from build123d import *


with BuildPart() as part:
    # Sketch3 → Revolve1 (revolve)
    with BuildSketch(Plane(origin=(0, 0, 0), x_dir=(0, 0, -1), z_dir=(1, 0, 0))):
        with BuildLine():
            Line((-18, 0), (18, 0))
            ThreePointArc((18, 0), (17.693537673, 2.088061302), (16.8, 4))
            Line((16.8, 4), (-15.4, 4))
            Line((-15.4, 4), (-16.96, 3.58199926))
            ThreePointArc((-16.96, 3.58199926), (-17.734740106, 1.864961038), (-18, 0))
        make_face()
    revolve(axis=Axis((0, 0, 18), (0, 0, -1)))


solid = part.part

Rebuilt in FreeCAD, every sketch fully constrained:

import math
import FreeCAD as App
import Part
import Sketcher
from FreeCAD import Vector
Q = App.Units.Quantity

doc = App.newDocument("Part")
body = doc.addObject("PartDesign::Body", "Body")

sketch1 = body.newObject("Sketcher::SketchObject", "Sketch")
sketch1.AttachmentSupport = (doc.getObject("YZ_Plane"), [""])
sketch1.MapMode = "FlatFace"
sketch1.addGeometry(Part.LineSegment(Vector(0, 18, 0), Vector(0, -18, 0)), False)
sketch1.addGeometry(Part.ArcOfCircle(Part.Circle(Vector(0, -10.7, 0), Vector(0, 0, 1), 7.3), math.radians(-90), math.radians(-57)), False)
sketch1.addGeometry(Part.LineSegment(Vector(4, -16.8, 0), Vector(4, 15.4, 0)), False)
sketch1.addGeometry(Part.LineSegment(Vector(4, 15.4, 0), Vector(3.6, 17, 0)), False)
sketch1.addGeometry(Part.ArcOfCircle(Part.Circle(Vector(0, 11.3, 0), Vector(0, 0, 1), 6.7), math.radians(58), math.radians(90)), False)
sketch1.addConstraint(Sketcher.Constraint("Coincident", 0, 2, 1, 1))
sketch1.addConstraint(Sketcher.Constraint("Coincident", 1, 2, 2, 1))
sketch1.addConstraint(Sketcher.Constraint("Coincident", 2, 2, 3, 1))
sketch1.addConstraint(Sketcher.Constraint("Coincident", 3, 2, 4, 1))
sketch1.addConstraint(Sketcher.Constraint("Coincident", 4, 2, 0, 1))
sketch1.addConstraint(Sketcher.Constraint("Vertical", 0))
sketch1.addConstraint(Sketcher.Constraint("Vertical", 2))
sketch1.addConstraint(Sketcher.Constraint("Symmetric", 0, 2, 4, 2, -1, 1))
sketch1.addConstraint(Sketcher.Constraint("PointOnObject", 1, 3, -2))
sketch1.addConstraint(Sketcher.Constraint("PointOnObject", 4, 3, -2))
sketch1.addConstraint(Sketcher.Constraint("DistanceY", 0, 2, 0, 1, Q("36 mm")))
sketch1.addConstraint(Sketcher.Constraint("Angle", 3, Q("105 deg")))
sketch1.addConstraint(Sketcher.Constraint("DistanceY", 2, 1, 2, 2, Q("32.2 mm")))
sketch1.addConstraint(Sketcher.Constraint("DistanceX", -1, 1, 1, 2, Q("4 mm")))
sketch1.addConstraint(Sketcher.Constraint("DistanceY", 1, 2, -1, 1, Q("16.8 mm")))
sketch1.addConstraint(Sketcher.Constraint("DistanceY", -1, 1, 3, 2, Q("16.96 mm")))
revolution = body.newObject("PartDesign::Revolution", "Revolution")
revolution.Profile = sketch1
revolution.ReferenceAxis = (sketch1, ["V_Axis"])
revolution.Angle = 360

doc.recompute()
